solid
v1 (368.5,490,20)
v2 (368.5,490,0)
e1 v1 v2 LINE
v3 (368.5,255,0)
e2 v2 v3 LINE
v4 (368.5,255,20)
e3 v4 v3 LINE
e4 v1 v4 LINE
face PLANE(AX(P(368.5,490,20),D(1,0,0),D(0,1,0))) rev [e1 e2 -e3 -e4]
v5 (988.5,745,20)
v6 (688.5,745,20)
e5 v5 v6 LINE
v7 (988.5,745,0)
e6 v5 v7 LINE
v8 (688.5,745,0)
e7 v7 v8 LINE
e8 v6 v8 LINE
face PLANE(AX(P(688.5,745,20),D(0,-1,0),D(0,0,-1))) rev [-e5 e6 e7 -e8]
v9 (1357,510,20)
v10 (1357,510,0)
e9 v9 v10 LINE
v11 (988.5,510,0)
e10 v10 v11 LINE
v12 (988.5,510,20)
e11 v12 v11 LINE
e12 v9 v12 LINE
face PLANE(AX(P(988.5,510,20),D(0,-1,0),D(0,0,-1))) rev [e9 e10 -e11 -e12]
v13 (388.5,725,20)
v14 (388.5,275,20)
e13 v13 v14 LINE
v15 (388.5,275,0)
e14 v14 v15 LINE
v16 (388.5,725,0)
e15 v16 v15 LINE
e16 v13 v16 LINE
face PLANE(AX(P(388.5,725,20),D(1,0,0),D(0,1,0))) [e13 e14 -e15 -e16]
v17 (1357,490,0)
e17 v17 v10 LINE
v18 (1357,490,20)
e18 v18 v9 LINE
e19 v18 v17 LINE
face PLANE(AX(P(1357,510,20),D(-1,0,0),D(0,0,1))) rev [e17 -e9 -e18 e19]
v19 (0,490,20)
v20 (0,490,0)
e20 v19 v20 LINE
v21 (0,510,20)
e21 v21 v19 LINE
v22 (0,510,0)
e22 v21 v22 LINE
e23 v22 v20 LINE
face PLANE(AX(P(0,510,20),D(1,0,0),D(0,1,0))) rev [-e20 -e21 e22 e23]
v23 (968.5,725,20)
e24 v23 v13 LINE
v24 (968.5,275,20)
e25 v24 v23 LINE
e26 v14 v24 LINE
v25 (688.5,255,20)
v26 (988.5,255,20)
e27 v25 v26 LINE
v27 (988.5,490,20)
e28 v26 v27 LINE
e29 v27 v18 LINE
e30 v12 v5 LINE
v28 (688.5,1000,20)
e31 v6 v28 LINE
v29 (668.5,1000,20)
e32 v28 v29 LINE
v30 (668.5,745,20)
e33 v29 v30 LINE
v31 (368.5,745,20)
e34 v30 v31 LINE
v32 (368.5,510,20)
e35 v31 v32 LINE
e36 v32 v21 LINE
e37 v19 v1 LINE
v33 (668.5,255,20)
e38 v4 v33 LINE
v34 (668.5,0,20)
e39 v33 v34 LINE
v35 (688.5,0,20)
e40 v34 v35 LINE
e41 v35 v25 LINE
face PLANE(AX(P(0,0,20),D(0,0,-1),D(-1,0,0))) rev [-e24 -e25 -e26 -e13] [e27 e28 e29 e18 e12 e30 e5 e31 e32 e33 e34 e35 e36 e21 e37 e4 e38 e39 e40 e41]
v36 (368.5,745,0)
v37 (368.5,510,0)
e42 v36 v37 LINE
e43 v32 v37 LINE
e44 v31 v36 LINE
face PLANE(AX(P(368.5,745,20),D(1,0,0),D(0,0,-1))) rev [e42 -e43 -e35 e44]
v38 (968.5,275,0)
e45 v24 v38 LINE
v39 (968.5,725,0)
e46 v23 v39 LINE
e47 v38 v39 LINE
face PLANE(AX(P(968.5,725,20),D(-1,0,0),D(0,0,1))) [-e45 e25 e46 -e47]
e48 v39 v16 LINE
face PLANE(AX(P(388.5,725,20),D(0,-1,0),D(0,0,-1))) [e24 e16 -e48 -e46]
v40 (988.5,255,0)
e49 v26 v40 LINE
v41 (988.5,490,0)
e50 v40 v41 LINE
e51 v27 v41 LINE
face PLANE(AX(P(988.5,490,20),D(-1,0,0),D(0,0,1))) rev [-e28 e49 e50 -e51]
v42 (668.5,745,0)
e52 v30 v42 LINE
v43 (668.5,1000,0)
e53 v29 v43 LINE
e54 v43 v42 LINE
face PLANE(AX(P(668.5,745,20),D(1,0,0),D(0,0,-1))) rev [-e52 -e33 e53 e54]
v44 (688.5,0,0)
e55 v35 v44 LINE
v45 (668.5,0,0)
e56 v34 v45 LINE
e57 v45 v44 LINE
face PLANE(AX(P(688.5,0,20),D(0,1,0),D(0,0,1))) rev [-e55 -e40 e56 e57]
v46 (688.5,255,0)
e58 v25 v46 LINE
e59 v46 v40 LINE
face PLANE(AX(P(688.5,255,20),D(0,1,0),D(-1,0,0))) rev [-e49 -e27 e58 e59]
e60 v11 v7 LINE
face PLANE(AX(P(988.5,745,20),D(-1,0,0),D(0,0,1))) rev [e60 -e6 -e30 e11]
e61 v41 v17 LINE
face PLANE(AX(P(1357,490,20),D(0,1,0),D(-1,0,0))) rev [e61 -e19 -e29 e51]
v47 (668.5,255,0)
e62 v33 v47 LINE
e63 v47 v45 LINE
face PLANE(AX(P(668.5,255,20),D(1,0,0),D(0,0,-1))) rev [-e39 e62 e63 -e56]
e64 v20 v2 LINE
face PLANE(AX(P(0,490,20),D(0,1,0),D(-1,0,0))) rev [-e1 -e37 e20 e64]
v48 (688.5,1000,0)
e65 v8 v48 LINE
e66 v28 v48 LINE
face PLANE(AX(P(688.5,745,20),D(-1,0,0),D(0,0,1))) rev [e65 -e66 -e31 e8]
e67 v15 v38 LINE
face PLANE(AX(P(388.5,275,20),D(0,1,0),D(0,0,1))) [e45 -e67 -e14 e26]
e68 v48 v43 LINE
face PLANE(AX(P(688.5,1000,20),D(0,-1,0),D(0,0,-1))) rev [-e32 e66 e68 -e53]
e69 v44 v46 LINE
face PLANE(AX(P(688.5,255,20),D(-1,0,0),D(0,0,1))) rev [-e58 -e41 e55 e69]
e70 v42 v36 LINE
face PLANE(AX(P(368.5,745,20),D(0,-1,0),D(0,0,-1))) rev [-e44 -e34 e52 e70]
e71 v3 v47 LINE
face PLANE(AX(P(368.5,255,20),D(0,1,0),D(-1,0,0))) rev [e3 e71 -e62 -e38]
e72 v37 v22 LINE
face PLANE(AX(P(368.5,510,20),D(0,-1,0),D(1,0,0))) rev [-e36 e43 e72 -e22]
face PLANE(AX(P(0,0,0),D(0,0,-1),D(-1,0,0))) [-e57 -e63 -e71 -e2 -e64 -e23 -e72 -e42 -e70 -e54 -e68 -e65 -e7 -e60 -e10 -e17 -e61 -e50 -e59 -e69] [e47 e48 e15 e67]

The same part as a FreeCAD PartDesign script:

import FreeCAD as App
import Part
import Sketcher


def add_polygon(sketch, points):
    """Adds a closed chain of lines whose ends are joined by coincident constraints."""
    first, n = sketch.GeometryCount, len(points)
    for a, b in zip(points, points[1:] + points[:1]):
        sketch.addGeometry(Part.LineSegment(App.Vector(*a, 0), App.Vector(*b, 0)), False)
    for i in range(n):
        sketch.addConstraint(Sketcher.Constraint("Coincident", first + i, 2, first + (i + 1) % n, 1))

doc = App.newDocument("Part")
body = doc.addObject("PartDesign::Body", "Body")

# Sketch on XY plane
sketch1 = body.newObject("Sketcher::SketchObject", "Sketch")
sketch1.AttachmentSupport = (doc.getObject("XY_Plane"), [""])
sketch1.MapMode = "FlatFace"
add_polygon(sketch1, [(668, 745), (368, 745), (368, 510), (0, 510), (0, 490), (368, 490), (368, 255), (668, 255), (668, 0), (688, 0), (688, 255), (988, 255), (988, 490), (1357, 490), (1357, 510), (988, 510), (988, 745), (688, 745), (688, 1000), (668, 1000)])  # lines 0-19
add_polygon(sketch1, [(388, 275), (388, 725), (968, 725), (968, 275)])  # lines 20-23
sketch1.addConstraint(Sketcher.Constraint("Horizontal", 0))
sketch1.addConstraint(Sketcher.Constraint("Vertical", 1))
sketch1.addConstraint(Sketcher.Constraint("Horizontal", 2))
sketch1.addConstraint(Sketcher.Constraint("Vertical", 3))
sketch1.addConstraint(Sketcher.Constraint("Horizontal", 4))
sketch1.addConstraint(Sketcher.Constraint("Vertical", 5))
sketch1.addConstraint(Sketcher.Constraint("Horizontal", 6))
sketch1.addConstraint(Sketcher.Constraint("Vertical", 7))
sketch1.addConstraint(Sketcher.Constraint("Horizontal", 8))
sketch1.addConstraint(Sketcher.Constraint("Vertical", 9))
sketch1.addConstraint(Sketcher.Constraint("Horizontal", 10))
sketch1.addConstraint(Sketcher.Constraint("Vertical", 11))
sketch1.addConstraint(Sketcher.Constraint("Horizontal", 12))
sketch1.addConstraint(Sketcher.Constraint("Vertical", 13))
sketch1.addConstraint(Sketcher.Constraint("Horizontal", 14))
sketch1.addConstraint(Sketcher.Constraint("Vertical", 15))
sketch1.addConstraint(Sketcher.Constraint("Horizontal", 16))
sketch1.addConstraint(Sketcher.Constraint("Vertical", 17))
sketch1.addConstraint(Sketcher.Constraint("Horizontal", 18))
sketch1.addConstraint(Sketcher.Constraint("Vertical", 19))
sketch1.addConstraint(Sketcher.Constraint("Vertical", 20))
sketch1.addConstraint(Sketcher.Constraint("Horizontal", 21))
sketch1.addConstraint(Sketcher.Constraint("Vertical", 22))
sketch1.addConstraint(Sketcher.Constraint("Horizontal", 23))
sketch1.addConstraint(Sketcher.Constraint("PointOnObject", 2, 2, -2))
sketch1.addConstraint(Sketcher.Constraint("PointOnObject", 7, 2, -1))
sketch1.addConstraint(Sketcher.Constraint("Horizontal", 6, 2, 9, 2))
sketch1.addConstraint(Sketcher.Constraint("Horizontal", 4, 2, 11, 2))
sketch1.addConstraint(Sketcher.Constraint("Horizontal", 2, 2, 13, 2))
sketch1.addConstraint(Sketcher.Constraint("Horizontal", 0, 2, 15, 2))
sketch1.addConstraint(Sketcher.Constraint("Vertical", 1, 2, 4, 2))
sketch1.addConstraint(Sketcher.Constraint("Vertical", 11, 2, 14, 2))
sketch1.addConstraint(Sketcher.Constraint("Vertical", 9, 2, 16, 2))
sketch1.addConstraint(Sketcher.Constraint("Vertical", 7, 2, 18, 2))
sketch1.addConstraint(Sketcher.Constraint("Equal", 6, 10))
sketch1.addConstraint(Sketcher.Constraint("Equal", 4, 12))
sketch1.addConstraint(Sketcher.Constraint("Equal", 18, 3))
sketch1.addConstraint(Sketcher.Constraint("Equal", 1, 5))
sketch1.addConstraint(Sketcher.Constraint("Equal", 9, 17))
sketch1.addConstraint(Sketcher.Constraint("DistanceX", 0, 2, 0, 1, 300.0))
sketch1.addConstraint(Sketcher.Constraint("DistanceX", 8, 1, 8, 2, 20.0))
sketch1.addConstraint(Sketcher.Constraint("DistanceX", 21, 1, 21, 2, 580.0))
sketch1.addConstraint(Sketcher.Constraint("DistanceY", 1, 2, 1, 1, 235.0))
sketch1.addConstraint(Sketcher.Constraint("DistanceY", 7, 2, 7, 1, 255.0))
sketch1.addConstraint(Sketcher.Constraint("DistanceY", 20, 1, 20, 2, 450.0))
sketch1.addConstraint(Sketcher.Constraint("DistanceX", 2, 2, 2, 1, 368.5))
sketch1.addConstraint(Sketcher.Constraint("DistanceY", -1, 1, 20, 2, 725.0))
sketch1.addConstraint(Sketcher.Constraint("DistanceX", 0, 2, 20, 2, 20.0))
pad1 = body.newObject("PartDesign::Pad", "Pad")
pad1.Profile = sketch1
pad1.Length = 20

doc.recompute()
